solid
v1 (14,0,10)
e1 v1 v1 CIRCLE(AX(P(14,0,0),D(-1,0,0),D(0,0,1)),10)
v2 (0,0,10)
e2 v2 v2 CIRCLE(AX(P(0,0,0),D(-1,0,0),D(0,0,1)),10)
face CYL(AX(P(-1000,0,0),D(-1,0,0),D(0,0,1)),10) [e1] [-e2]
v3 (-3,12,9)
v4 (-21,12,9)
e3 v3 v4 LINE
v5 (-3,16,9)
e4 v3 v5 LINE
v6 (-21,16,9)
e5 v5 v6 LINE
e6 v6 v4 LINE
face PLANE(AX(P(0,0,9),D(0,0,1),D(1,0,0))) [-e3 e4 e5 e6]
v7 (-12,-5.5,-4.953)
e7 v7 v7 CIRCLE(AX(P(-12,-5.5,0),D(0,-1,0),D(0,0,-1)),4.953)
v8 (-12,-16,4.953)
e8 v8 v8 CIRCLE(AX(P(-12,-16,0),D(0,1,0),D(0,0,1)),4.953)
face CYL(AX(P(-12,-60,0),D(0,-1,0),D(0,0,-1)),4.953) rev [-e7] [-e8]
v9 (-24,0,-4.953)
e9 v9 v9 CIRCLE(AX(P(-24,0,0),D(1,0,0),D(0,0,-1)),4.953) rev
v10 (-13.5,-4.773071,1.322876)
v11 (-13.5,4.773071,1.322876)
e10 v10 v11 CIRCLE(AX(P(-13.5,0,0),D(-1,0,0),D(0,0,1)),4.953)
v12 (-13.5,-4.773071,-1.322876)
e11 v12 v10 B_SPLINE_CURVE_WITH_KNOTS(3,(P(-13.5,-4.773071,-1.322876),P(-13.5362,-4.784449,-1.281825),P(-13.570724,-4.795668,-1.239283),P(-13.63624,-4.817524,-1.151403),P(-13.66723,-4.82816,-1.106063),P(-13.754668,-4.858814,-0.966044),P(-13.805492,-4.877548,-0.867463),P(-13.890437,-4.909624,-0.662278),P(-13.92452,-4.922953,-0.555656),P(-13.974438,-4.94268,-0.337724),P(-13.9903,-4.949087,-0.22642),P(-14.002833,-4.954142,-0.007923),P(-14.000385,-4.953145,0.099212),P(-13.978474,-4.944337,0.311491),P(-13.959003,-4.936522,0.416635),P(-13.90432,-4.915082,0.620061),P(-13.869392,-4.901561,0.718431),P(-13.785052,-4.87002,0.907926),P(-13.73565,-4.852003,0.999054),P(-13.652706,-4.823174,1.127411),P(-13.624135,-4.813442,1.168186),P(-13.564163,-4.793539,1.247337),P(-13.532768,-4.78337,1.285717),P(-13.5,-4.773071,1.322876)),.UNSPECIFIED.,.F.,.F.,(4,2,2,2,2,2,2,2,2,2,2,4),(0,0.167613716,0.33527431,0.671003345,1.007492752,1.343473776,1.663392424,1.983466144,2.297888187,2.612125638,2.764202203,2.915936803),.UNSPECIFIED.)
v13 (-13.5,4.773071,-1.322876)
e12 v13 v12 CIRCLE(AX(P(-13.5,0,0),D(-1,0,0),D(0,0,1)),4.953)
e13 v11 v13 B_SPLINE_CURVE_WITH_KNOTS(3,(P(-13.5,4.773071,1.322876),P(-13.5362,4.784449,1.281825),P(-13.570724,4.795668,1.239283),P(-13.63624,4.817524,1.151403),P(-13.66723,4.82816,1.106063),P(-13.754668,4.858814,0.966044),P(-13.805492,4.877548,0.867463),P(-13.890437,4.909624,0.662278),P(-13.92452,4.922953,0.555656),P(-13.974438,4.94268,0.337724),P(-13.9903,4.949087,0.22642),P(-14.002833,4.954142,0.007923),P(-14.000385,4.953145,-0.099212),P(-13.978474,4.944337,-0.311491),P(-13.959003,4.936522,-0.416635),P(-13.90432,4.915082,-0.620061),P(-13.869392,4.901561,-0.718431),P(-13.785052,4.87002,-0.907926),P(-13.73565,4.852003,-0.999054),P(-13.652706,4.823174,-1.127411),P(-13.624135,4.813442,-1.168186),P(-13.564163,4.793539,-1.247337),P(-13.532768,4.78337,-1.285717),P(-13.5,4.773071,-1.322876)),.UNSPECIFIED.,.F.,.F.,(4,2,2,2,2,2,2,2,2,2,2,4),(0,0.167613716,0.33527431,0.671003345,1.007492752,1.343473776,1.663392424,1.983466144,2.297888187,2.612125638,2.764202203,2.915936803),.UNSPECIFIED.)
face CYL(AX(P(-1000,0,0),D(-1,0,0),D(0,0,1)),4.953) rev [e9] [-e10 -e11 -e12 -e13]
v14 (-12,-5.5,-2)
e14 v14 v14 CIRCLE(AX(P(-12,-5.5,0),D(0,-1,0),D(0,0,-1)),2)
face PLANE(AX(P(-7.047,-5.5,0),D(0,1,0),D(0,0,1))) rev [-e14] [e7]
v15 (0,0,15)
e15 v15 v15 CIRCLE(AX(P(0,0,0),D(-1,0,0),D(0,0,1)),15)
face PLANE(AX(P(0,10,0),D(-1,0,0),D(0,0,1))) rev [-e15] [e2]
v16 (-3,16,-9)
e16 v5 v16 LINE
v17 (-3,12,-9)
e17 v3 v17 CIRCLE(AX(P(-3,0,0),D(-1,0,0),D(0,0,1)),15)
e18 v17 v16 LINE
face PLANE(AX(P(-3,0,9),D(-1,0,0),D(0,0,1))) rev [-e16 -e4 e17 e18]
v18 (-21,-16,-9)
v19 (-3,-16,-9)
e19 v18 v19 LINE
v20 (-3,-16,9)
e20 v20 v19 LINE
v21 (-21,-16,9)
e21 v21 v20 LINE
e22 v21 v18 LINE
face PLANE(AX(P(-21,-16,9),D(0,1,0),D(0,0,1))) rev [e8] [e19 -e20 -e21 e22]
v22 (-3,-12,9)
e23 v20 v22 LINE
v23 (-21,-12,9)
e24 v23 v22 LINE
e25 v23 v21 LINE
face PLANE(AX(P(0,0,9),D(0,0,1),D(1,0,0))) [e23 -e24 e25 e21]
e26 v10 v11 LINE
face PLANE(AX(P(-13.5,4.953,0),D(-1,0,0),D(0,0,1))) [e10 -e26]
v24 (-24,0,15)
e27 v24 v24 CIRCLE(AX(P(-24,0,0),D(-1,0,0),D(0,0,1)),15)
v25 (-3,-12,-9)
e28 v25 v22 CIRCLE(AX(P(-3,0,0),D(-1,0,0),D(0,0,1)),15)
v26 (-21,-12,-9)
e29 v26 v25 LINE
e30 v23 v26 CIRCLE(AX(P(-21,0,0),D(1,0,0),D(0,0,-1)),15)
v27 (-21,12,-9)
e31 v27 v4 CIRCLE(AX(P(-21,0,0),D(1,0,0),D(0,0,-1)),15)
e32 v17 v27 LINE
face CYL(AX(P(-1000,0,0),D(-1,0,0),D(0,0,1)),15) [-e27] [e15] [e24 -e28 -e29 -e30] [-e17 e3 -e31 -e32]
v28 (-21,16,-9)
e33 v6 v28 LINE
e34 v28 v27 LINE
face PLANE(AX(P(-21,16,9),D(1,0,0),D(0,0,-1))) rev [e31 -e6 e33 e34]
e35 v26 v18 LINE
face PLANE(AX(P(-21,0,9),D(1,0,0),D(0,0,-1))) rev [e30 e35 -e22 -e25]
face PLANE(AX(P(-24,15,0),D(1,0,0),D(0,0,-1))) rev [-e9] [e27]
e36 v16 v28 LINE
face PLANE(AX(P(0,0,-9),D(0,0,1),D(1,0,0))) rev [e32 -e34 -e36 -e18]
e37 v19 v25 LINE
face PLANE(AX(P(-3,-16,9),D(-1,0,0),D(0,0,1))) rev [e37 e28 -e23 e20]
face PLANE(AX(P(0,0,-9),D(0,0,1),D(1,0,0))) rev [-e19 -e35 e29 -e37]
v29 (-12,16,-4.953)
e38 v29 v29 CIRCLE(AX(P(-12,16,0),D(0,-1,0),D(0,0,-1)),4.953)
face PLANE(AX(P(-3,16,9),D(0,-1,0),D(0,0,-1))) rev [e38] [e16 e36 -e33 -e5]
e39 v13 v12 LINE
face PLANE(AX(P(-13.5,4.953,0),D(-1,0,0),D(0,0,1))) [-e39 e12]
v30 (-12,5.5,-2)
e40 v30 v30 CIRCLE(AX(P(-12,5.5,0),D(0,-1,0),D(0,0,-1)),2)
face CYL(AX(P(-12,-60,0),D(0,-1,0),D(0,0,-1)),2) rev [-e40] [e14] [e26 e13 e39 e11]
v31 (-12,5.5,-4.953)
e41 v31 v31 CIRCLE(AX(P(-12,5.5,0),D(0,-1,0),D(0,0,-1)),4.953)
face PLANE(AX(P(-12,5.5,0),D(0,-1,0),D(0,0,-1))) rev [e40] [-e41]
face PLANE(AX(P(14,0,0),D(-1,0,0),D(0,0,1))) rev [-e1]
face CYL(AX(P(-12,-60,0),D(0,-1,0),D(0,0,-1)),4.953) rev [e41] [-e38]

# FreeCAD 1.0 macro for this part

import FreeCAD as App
import Part
import Sketcher
Q = App.Units.Quantity


def add_polygon(sketch, points):
    """Adds a closed chain of lines whose ends are joined by coincident constraints."""
    first, n = sketch.GeometryCount, len(points)
    for a, b in zip(points, points[1:] + points[:1]):
        sketch.addGeometry(Part.LineSegment(App.Vector(*a, 0), App.Vector(*b, 0)), False)
    for i in range(n):
        sketch.addConstraint(Sketcher.Constraint("Coincident", first + i, 2, first + (i + 1) % n, 1))

doc = App.newDocument("Part")
params = doc.addObject("Spreadsheet::Sheet", "Params")
for row, (alias, value) in enumerate([
    ("sketch1_width", "14 mm"),
    ("sketch1_width2", "24 mm"),
    ("sketch1_height", "10 mm"),
    ("sketch1_height2", "5 mm"),
    ("revolution_angle", "360 deg"),
    ("sketch2_width", "18 mm"),
    ("sketch2_height", "16 mm"),
    ("pad1_length", "18 mm"),
    ("sketch3_width", "18 mm"),
    ("sketch3_height", "16 mm"),
    ("pad2_length", "18 mm"),
    ("sketch4_width", "11.5 mm"),
    ("groove_angle", "360 deg"),
    ("sketch5_height", "11.5 mm"),
    ("groove2_angle", "360 deg"),
    ("sketch6_width", "2 mm"),
    ("sketch6_height", "5.5 mm"),
    ("groove3_angle", "360 deg"),
    ("sketch7_height", "11.5 mm"),
    ("groove4_angle", "360 deg"),
    ("sketch8_width", "2 mm"),
    ("sketch8_height", "5.5 mm"),
    ("groove5_angle", "360 deg"),
], start=1):
    params.set(f"A{row}", alias)
    params.set(f"B{row}", "=" + value)
    params.setAlias(f"B{row}", alias)

body = doc.addObject("PartDesign::Body", "Body")

sketch1 = body.newObject("Sketcher::SketchObject", "Sketch")
sketch1.AttachmentSupport = (doc.getObject("XY_Plane"), [""])
sketch1.MapMode = "FlatFace"
add_polygon(sketch1, [(14, 0), (14, 10), (0, 10), (0, 15), (-24, 15), (-24, 0)])
sketch1.addConstraint([
    Sketcher.Constraint("Vertical", 0),
    Sketcher.Constraint("Horizontal", 1),
    Sketcher.Constraint("Vertical", 2),
    Sketcher.Constraint("Horizontal", 3),
    Sketcher.Constraint("Vertical", 4),
    Sketcher.Constraint("Horizontal", 5),
    Sketcher.Constraint("PointOnObject", 1, 2, -2),
    Sketcher.Constraint("PointOnObject", 4, 2, -1),
    Sketcher.Constraint("DistanceX", 1, 2, 1, 1, Q("14 mm")),
    Sketcher.Constraint("DistanceX", 3, 2, 3, 1, Q("24 mm")),
    Sketcher.Constraint("DistanceY", 0, 1, 0, 2, Q("10 mm")),
    Sketcher.Constraint("DistanceY", 2, 1, 2, 2, Q("5 mm")),
])
sketch1.setExpression("Constraints[14]", "Params.sketch1_width")
sketch1.setExpression("Constraints[15]", "Params.sketch1_width2")
sketch1.setExpression("Constraints[16]", "Params.sketch1_height")
sketch1.setExpression("Constraints[17]", "Params.sketch1_height2")
revolution = body.newObject("PartDesign::Revolution", "Revolution")
revolution.Profile = sketch1
revolution.ReferenceAxis = (sketch1, ["H_Axis"])
revolution.setExpression("Angle", "Params.revolution_angle")

sketch2 = body.newObject("Sketcher::SketchObject", "Sketch001")
sketch2.AttachmentSupport = (doc.getObject("XY_Plane"), [""])
sketch2.MapMode = "FlatFace"
add_polygon(sketch2, [(-21, 16), (-21, 0), (-3, 0), (-3, 16)])
sketch2.addConstraint([
    Sketcher.Constraint("Vertical", 0),
    Sketcher.Constraint("Horizontal", 1),
    Sketcher.Constraint("Vertical", 2),
    Sketcher.Constraint("Horizontal", 3),
    Sketcher.Constraint("PointOnObject", 0, 2, -1),
    Sketcher.Constraint("DistanceX", 1, 1, 1, 2, Q("18 mm")),
    Sketcher.Constraint("DistanceY", 0, 2, 0, 1, Q("16 mm")),
    Sketcher.Constraint("DistanceX", 0, 2, -1, 1, Q("21 mm")),
])
sketch2.setExpression("Constraints[9]", "Params.sketch2_width")
sketch2.setExpression("Constraints[10]", "Params.sketch2_height")
pad1 = body.newObject("PartDesign::Pad", "Pad")
pad1.Profile = sketch2
pad1.setExpression("Length", "Params.pad1_length")
pad1.Midplane = True

sketch3 = body.newObject("Sketcher::SketchObject", "Sketch002")
sketch3.AttachmentSupport = (doc.getObject("XY_Plane"), [""])
sketch3.MapMode = "FlatFace"
add_polygon(sketch3, [(-21, 0), (-21, -16), (-3, -16), (-3, 0)])
sketch3.addConstraint([
    Sketcher.Constraint("Vertical", 0),
    Sketcher.Constraint("Horizontal", 1),
    Sketcher.Constraint("Vertical", 2),
    Sketcher.Constraint("Horizontal", 3),
    Sketcher.Constraint("PointOnObject", 2, 2, -1),
    Sketcher.Constraint("DistanceX", 1, 1, 1, 2, Q("18 mm")),
    Sketcher.Constraint("DistanceY", 0, 2, 0, 1, Q("16 mm")),
    Sketcher.Constraint("DistanceX", 0, 2, -1, 1, Q("21 mm")),
])
sketch3.setExpression("Constraints[9]", "Params.sketch3_width")
sketch3.setExpression("Constraints[10]", "Params.sketch3_height")
pad2 = body.newObject("PartDesign::Pad", "Pad001")
pad2.Profile = sketch3
pad2.setExpression("Length", "Params.pad2_length")
pad2.Midplane = True

sketch4 = body.newObject("Sketcher::SketchObject", "Sketch003")
sketch4.AttachmentSupport = (doc.getObject("XY_Plane"), [""])
sketch4.MapMode = "FlatFace"
add_polygon(sketch4, [(-25, 5), (-25, 0), (-13.5, 0), (-13.5, 5)])
sketch4.addConstraint([
    Sketcher.Constraint("Vertical", 0),
    Sketcher.Constraint("Horizontal", 1),
    Sketcher.Constraint("Vertical", 2),
    Sketcher.Constraint("Horizontal", 3),
    Sketcher.Constraint("PointOnObject", 0, 2, -1),
    Sketcher.Constraint("DistanceX", 1, 1, 1, 2, Q("11.5 mm")),
    Sketcher.Constraint("DistanceX", 0, 2, -1, 1, Q("25 mm")),
    Sketcher.Constraint("DistanceY", 0, 2, 0, 1, Q("4.953 mm")),
])
sketch4.setExpression("Constraints[9]", "Params.sketch4_width")
groove = body.newObject("PartDesign::Groove", "Groove")
groove.Profile = sketch4
groove.ReferenceAxis = (sketch4, ["H_Axis"])
groove.setExpression("Angle", "Params.groove_angle")

sketch5 = body.newObject("Sketcher::SketchObject", "Sketch004")
sketch5.AttachmentSupport = (doc.getObject("XY_Plane"), [""])
sketch5.MapMode = "FlatFace"
add_polygon(sketch5, [(-12, 17), (-12, 5.5), (-7, 5.5), (-7, 17)])
sketch5.addGeometry(Part.LineSegment(App.Vector(-12, 5.5, 0), App.Vector(-12, 17, 0)), True)
sketch5.addConstraint([
    Sketcher.Constraint("Vertical", 0),
    Sketcher.Constraint("Horizontal", 1),
    Sketcher.Constraint("Vertical", 2),
    Sketcher.Constraint("Horizontal", 3),
    Sketcher.Constraint("Vertical", 4),
    Sketcher.Constraint("Coincident", 4, 1, 0, 2),
    Sketcher.Constraint("Horizontal", 2, 2, 4, 2),
    Sketcher.Constraint("DistanceY", 0, 2, 0, 1, Q("11.5 mm")),
    Sketcher.Constraint("DistanceX", 0, 2, -1, 1, Q("12 mm")),
    Sketcher.Constraint("DistanceY", -1, 1, 2, 2, Q("17 mm")),
    Sketcher.Constraint("DistanceX", 1, 1, 1, 2, Q("4.953 mm")),
])
sketch5.setExpression("Constraints[11]", "Params.sketch5_height")
groove2 = body.newObject("PartDesign::Groove", "Groove001")
groove2.Profile = sketch5
groove2.ReferenceAxis = (sketch5, ["Axis0"])
groove2.setExpression("Angle", "Params.groove2_angle")

sketch6 = body.newObject("Sketcher::SketchObject", "Sketch005")
sketch6.AttachmentSupport = (doc.getObject("XY_Plane"), [""])
sketch6.MapMode = "FlatFace"
add_polygon(sketch6, [(-12, 5.5), (-12, 0), (-10, 0), (-10, 5.5)])
sketch6.addGeometry(Part.LineSegment(App.Vector(-12, 0, 0), App.Vector(-12, 5.5, 0)), True)
sketch6.addConstraint([
    Sketcher.Constraint("Vertical", 0),
    Sketcher.Constraint("Horizontal", 1),
    Sketcher.Constraint("Vertical", 2),
    Sketcher.Constraint("Horizontal", 3),
    Sketcher.Constraint("Vertical", 4),
    Sketcher.Constraint("Coincident", 4, 1, 0, 2),
    Sketcher.Constraint("PointOnObject", 0, 2, -1),
    Sketcher.Constraint("Horizontal", 2, 2, 4, 2),
    Sketcher.Constraint("DistanceX", 1, 1, 1, 2, Q("2 mm")),
    Sketcher.Constraint("DistanceY", 0, 2, 0, 1, Q("5.5 mm")),
    Sketcher.Constraint("DistanceX", 0, 2, -1, 1, Q("12 mm")),
])
sketch6.setExpression("Constraints[12]", "Params.sketch6_width")
sketch6.setExpression("Constraints[13]", "Params.sketch6_height")
groove3 = body.newObject("PartDesign::Groove", "Groove002")
groove3.Profile = sketch6
groove3.ReferenceAxis = (sketch6, ["Axis0"])
groove3.setExpression("Angle", "Params.groove3_angle")

sketch7 = body.newObject("Sketcher::SketchObject", "Sketch006")
sketch7.AttachmentSupport = (doc.getObject("XY_Plane"), [""])
sketch7.MapMode = "FlatFace"
add_polygon(sketch7, [(-12, -5.5), (-12, -17), (-7, -17), (-7, -5.5)])
sketch7.addGeometry(Part.LineSegment(App.Vector(-12, -17, 0), App.Vector(-12, -5.5, 0)), True)
sketch7.addConstraint([
    Sketcher.Constraint("Vertical", 0),
    Sketcher.Constraint("Horizontal", 1),
    Sketcher.Constraint("Vertical", 2),
    Sketcher.Constraint("Horizontal", 3),
    Sketcher.Constraint("Vertical", 4),
    Sketcher.Constraint("Coincident", 4, 1, 0, 2),
    Sketcher.Constraint("Horizontal", 2, 2, 4, 2),
    Sketcher.Constraint("DistanceY", 0, 2, 0, 1, Q("11.5 mm")),
    Sketcher.Constraint("DistanceX", 0, 2, -1, 1, Q("12 mm")),
    Sketcher.Constraint("DistanceY", 0, 2, -1, 1, Q("17 mm")),
    Sketcher.Constraint("DistanceX", 1, 1, 1, 2, Q("4.953 mm")),
])
sketch7.setExpression("Constraints[11]", "Params.sketch7_height")
groove4 = body.newObject("PartDesign::Groove", "Groove003")
groove4.Profile = sketch7
groove4.ReferenceAxis = (sketch7, ["Axis0"])
groove4.setExpression("Angle", "Params.groove4_angle")

sketch8 = body.newObject("Sketcher::SketchObject", "Sketch007")
sketch8.AttachmentSupport = (doc.getObject("XY_Plane"), [""])
sketch8.MapMode = "FlatFace"
add_polygon(sketch8, [(-12, 0), (-12, -5.5), (-10, -5.5), (-10, 0)])
sketch8.addGeometry(Part.LineSegment(App.Vector(-12, -5.5, 0), App.Vector(-12, 0, 0)), True)
sketch8.addConstraint([
    Sketcher.Constraint("Vertical", 0),
    Sketcher.Constraint("Horizontal", 1),
    Sketcher.Constraint("Vertical", 2),
    Sketcher.Constraint("Horizontal", 3),
    Sketcher.Constraint("Vertical", 4),
    Sketcher.Constraint("Coincident", 4, 1, 0, 2),
    Sketcher.Constraint("PointOnObject", 2, 2, -1),
    Sketcher.Constraint("PointOnObject", 4, 2, -1),
    Sketcher.Constraint("DistanceX", 1, 1, 1, 2, Q("2 mm")),
    Sketcher.Constraint("DistanceY", 0, 2, 0, 1, Q("5.5 mm")),
    Sketcher.Constraint("DistanceX", 0, 2, -1, 1, Q("12 mm")),
])
sketch8.setExpression("Constraints[12]", "Params.sketch8_width")
sketch8.setExpression("Constraints[13]", "Params.sketch8_height")
groove5 = body.newObject("PartDesign::Groove", "Groove004")
groove5.Profile = sketch8
groove5.ReferenceAxis = (sketch8, ["Axis0"])
groove5.setExpression("Angle", "Params.groove5_angle")

doc.recompute()
